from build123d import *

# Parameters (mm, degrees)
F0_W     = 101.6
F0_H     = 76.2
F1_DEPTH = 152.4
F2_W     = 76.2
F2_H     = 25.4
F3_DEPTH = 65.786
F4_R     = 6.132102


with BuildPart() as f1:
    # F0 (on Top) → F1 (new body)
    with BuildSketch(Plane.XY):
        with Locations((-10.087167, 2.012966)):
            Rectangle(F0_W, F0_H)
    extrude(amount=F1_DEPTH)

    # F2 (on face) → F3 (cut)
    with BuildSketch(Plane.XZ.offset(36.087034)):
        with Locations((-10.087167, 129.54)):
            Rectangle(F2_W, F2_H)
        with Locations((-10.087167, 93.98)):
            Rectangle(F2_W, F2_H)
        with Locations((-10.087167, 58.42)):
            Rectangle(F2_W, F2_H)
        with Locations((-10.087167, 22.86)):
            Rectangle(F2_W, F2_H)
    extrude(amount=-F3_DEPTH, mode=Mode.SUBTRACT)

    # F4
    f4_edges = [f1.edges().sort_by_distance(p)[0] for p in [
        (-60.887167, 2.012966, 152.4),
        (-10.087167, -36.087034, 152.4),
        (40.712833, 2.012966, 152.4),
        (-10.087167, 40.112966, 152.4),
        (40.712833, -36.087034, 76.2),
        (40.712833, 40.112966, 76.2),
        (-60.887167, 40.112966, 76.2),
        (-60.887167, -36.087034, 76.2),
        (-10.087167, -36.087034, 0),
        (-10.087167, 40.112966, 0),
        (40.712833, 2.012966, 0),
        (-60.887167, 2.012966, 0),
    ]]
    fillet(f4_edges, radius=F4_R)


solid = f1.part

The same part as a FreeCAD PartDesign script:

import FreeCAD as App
import Part
import Sketcher
Q = App.Units.Quantity


def edges_at(feature, points):
    """Names of the edges that pass closest to the given points."""
    edges = feature.Shape.Edges
    near = lambda p: min(range(len(edges)), key=lambda i: edges[i].distToShape(Part.Vertex(*p))[0])
    return sorted({f"Edge{near(p) + 1}" for p in points})

doc = App.newDocument("Part")
body = doc.addObject("PartDesign::Body", "Body")

# Sketch on XY plane
sketch1 = body.newObject("Sketcher::SketchObject", "Sketch")
sketch1.AttachmentSupport = (doc.getObject("XY_Plane"), [""])
sketch1.MapMode = "FlatFace"
sketch1.addGeometry(Part.LineSegment(App.Vector(-61, 40, 0), App.Vector(-61, -36, 0)), False)
sketch1.addGeometry(Part.LineSegment(App.Vector(-61, -36, 0), App.Vector(41, -36, 0)), False)
sketch1.addGeometry(Part.LineSegment(App.Vector(41, -36, 0), App.Vector(41, 40, 0)), False)
sketch1.addGeometry(Part.LineSegment(App.Vector(41, 40, 0), App.Vector(-61, 40, 0)), False)
sketch1.addConstraint(Sketcher.Constraint("Coincident", 0, 2, 1, 1))
sketch1.addConstraint(Sketcher.Constraint("Coincident", 1, 2, 2, 1))
sketch1.addConstraint(Sketcher.Constraint("Coincident", 2, 2, 3, 1))
sketch1.addConstraint(Sketcher.Constraint("Coincident", 3, 2, 0, 1))
sketch1.addConstraint(Sketcher.Constraint("Vertical", 0))
sketch1.addConstraint(Sketcher.Constraint("Horizontal", 1))
sketch1.addConstraint(Sketcher.Constraint("Vertical", 2))
sketch1.addConstraint(Sketcher.Constraint("Horizontal", 3))
sketch1.addConstraint(Sketcher.Constraint("DistanceX", 1, 1, 1, 2, Q("4 in")))
sketch1.addConstraint(Sketcher.Constraint("DistanceY", 0, 2, 0, 1, Q("3 in")))
sketch1.addConstraint(Sketcher.Constraint("DistanceX", 0, 2, -1, 1, 60.887167))
sketch1.addConstraint(Sketcher.Constraint("DistanceY", 0, 2, -1, 1, 36.087034))
pad1 = body.newObject("PartDesign::Pad", "Pad")
pad1.Profile = sketch1
pad1.Length = Q("6 in")

# Sketch on XZ plane
sketch2 = body.newObject("Sketcher::SketchObject", "Sketch001")
sketch2.AttachmentSupport = (doc.getObject("XZ_Plane"), [""])
sketch2.MapMode = "FlatFace"
sketch2.AttachmentOffset = App.Placement(App.Vector(0, 0, 36.087034), App.Rotation())
sketch2.addGeometry(Part.LineSegment(App.Vector(-48, 142, 0), App.Vector(-48, 117, 0)), False)
sketch2.addGeometry(Part.LineSegment(App.Vector(-48, 117, 0), App.Vector(28, 117, 0)), False)
sketch2.addGeometry(Part.LineSegment(App.Vector(28, 117, 0), App.Vector(28, 142, 0)), False)
sketch2.addGeometry(Part.LineSegment(App.Vector(28, 142, 0), App.Vector(-48, 142, 0)), False)
sketch2.addGeometry(Part.LineSegment(App.Vector(-48, 107, 0), App.Vector(-48, 81, 0)), False)
sketch2.addGeometry(Part.LineSegment(App.Vector(-48, 81, 0), App.Vector(28, 81, 0)), False)
sketch2.addGeometry(Part.LineSegment(App.Vector(28, 81, 0), App.Vector(28, 107, 0)), False)
sketch2.addGeometry(Part.LineSegment(App.Vector(28, 107, 0), App.Vector(-48, 107, 0)), False)
sketch2.addGeometry(Part.LineSegment(App.Vector(-48, 71, 0), App.Vector(-48, 46, 0)), False)
sketch2.addGeometry(Part.LineSegment(App.Vector(-48, 46, 0), App.Vector(28, 46, 0)), False)
sketch2.addGeometry(Part.LineSegment(App.Vector(28, 46, 0), App.Vector(28, 71, 0)), False)
sketch2.addGeometry(Part.LineSegment(App.Vector(28, 71, 0), App.Vector(-48, 71, 0)), False)
sketch2.addGeometry(Part.LineSegment(App.Vector(-48, 36, 0), App.Vector(-48, 10, 0)), False)
sketch2.addGeometry(Part.LineSegment(App.Vector(-48, 10, 0), App.Vector(28, 10, 0)), False)
sketch2.addGeometry(Part.LineSegment(App.Vector(28, 10, 0), App.Vector(28, 36, 0)), False)
sketch2.addGeometry(Part.LineSegment(App.Vector(28, 36, 0), App.Vector(-48, 36, 0)), False)
sketch2.addConstraint(Sketcher.Constraint("Coincident", 0, 2, 1, 1))
sketch2.addConstraint(Sketcher.Constraint("Coincident", 1, 2, 2, 1))
sketch2.addConstraint(Sketcher.Constraint("Coincident", 2, 2, 3, 1))
sketch2.addConstraint(Sketcher.Constraint("Coincident", 3, 2, 0, 1))
sketch2.addConstraint(Sketcher.Constraint("Coincident", 4, 2, 5, 1))
sketch2.addConstraint(Sketcher.Constraint("Coincident", 5, 2, 6, 1))
sketch2.addConstraint(Sketcher.Constraint("Coincident", 6, 2, 7, 1))
sketch2.addConstraint(Sketcher.Constraint("Coincident", 7, 2, 4, 1))
sketch2.addConstraint(Sketcher.Constraint("Coincident", 8, 2, 9, 1))
sketch2.addConstraint(Sketcher.Constraint("Coincident", 9, 2, 10, 1))
sketch2.addConstraint(Sketcher.Constraint("Coincident", 10, 2, 11, 1))
sketch2.addConstraint(Sketcher.Constraint("Coincident", 11, 2, 8, 1))
sketch2.addConstraint(Sketcher.Constraint("Coincident", 12, 2, 13, 1))
sketch2.addConstraint(Sketcher.Constraint("Coincident", 13, 2, 14, 1))
sketch2.addConstraint(Sketcher.Constraint("Coincident", 14, 2, 15, 1))
sketch2.addConstraint(Sketcher.Constraint("Coincident", 15, 2, 12, 1))
sketch2.addConstraint(Sketcher.Constraint("Vertical", 0))
sketch2.addConstraint(Sketcher.Constraint("Horizontal", 1))
sketch2.addConstraint(Sketcher.Constraint("Vertical", 2))
sketch2.addConstraint(Sketcher.Constraint("Horizontal", 3))
sketch2.addConstraint(Sketcher.Constraint("Vertical", 4))
sketch2.addConstraint(Sketcher.Constraint("Horizontal", 5))
sketch2.addConstraint(Sketcher.Constraint("Vertical", 6))
sketch2.addConstraint(Sketcher.Constraint("Horizontal", 7))
sketch2.addConstraint(Sketcher.Constraint("Vertical", 8))
sketch2.addConstraint(Sketcher.Constraint("Horizontal", 9))
sketch2.addConstraint(Sketcher.Constraint("Vertical", 10))
sketch2.addConstraint(Sketcher.Constraint("Horizontal", 11))
sketch2.addConstraint(Sketcher.Constraint("Vertical", 12))
sketch2.addConstraint(Sketcher.Constraint("Horizontal", 13))
sketch2.addConstraint(Sketcher.Constraint("Vertical", 14))
sketch2.addConstraint(Sketcher.Constraint("Horizontal", 15))
sketch2.addConstraint(Sketcher.Constraint("Vertical", 3, 2, 4, 2))
sketch2.addConstraint(Sketcher.Constraint("Vertical", 2, 2, 5, 2))
sketch2.addConstraint(Sketcher.Constraint("Vertical", 7, 2, 8, 2))
sketch2.addConstraint(Sketcher.Constraint("Vertical", 6, 2, 9, 2))
sketch2.addConstraint(Sketcher.Constraint("Vertical", 11, 2, 12, 2))
sketch2.addConstraint(Sketcher.Constraint("Vertical", 10, 2, 13, 2))
sketch2.addConstraint(Sketcher.Constraint("Equal", 2, 4))
sketch2.addConstraint(Sketcher.Constraint("Equal", 6, 8))
sketch2.addConstraint(Sketcher.Constraint("Equal", 10, 12))
sketch2.addConstraint(Sketcher.Constraint("DistanceX", 1, 1, 1, 2, Q("3 in")))
sketch2.addConstraint(Sketcher.Constraint("DistanceY", 0, 2, 0, 1, Q("1 in")))
sketch2.addConstraint(Sketcher.Constraint("DistanceY", -1, 1, 0, 2, Q("4.6 in")))
sketch2.addConstraint(Sketcher.Constraint("DistanceY", -1, 1, 4, 2, Q("3.2 in")))
sketch2.addConstraint(Sketcher.Constraint("DistanceY", -1, 1, 8, 2, Q("1.8 in")))
sketch2.addConstraint(Sketcher.Constraint("DistanceY", -1, 1, 12, 2, Q("0.4 in")))
sketch2.addConstraint(Sketcher.Constraint("DistanceX", 0, 2, -1, 1, 48.187167))
pocket1 = body.newObject("PartDesign::Pocket", "Pocket")
pocket1.Profile = sketch2
pocket1.Length = Q("2.59 in")
doc.recompute()

fillet = body.newObject("PartDesign::Fillet", "Fillet")
fillet.Base = (pocket1, edges_at(pocket1, [
    (-60.887, 2.013, 152.4),
    (-10.087, -36.087, 152.4),
    (40.713, 2.013, 152.4),
    (-10.087, 40.113, 152.4),
    (40.713, -36.087, 76.2),
    (40.713, 40.113, 76.2),
    (-60.887, 40.113, 76.2),
    (-60.887, -36.087, 76.2),
    (-10.087, -36.087, 0),
    (-10.087, 40.113, 0),
    (40.713, 2.013, 0),
    (-60.887, 2.013, 0),
]))
fillet.Radius = 6.132102

doc.recompute()
